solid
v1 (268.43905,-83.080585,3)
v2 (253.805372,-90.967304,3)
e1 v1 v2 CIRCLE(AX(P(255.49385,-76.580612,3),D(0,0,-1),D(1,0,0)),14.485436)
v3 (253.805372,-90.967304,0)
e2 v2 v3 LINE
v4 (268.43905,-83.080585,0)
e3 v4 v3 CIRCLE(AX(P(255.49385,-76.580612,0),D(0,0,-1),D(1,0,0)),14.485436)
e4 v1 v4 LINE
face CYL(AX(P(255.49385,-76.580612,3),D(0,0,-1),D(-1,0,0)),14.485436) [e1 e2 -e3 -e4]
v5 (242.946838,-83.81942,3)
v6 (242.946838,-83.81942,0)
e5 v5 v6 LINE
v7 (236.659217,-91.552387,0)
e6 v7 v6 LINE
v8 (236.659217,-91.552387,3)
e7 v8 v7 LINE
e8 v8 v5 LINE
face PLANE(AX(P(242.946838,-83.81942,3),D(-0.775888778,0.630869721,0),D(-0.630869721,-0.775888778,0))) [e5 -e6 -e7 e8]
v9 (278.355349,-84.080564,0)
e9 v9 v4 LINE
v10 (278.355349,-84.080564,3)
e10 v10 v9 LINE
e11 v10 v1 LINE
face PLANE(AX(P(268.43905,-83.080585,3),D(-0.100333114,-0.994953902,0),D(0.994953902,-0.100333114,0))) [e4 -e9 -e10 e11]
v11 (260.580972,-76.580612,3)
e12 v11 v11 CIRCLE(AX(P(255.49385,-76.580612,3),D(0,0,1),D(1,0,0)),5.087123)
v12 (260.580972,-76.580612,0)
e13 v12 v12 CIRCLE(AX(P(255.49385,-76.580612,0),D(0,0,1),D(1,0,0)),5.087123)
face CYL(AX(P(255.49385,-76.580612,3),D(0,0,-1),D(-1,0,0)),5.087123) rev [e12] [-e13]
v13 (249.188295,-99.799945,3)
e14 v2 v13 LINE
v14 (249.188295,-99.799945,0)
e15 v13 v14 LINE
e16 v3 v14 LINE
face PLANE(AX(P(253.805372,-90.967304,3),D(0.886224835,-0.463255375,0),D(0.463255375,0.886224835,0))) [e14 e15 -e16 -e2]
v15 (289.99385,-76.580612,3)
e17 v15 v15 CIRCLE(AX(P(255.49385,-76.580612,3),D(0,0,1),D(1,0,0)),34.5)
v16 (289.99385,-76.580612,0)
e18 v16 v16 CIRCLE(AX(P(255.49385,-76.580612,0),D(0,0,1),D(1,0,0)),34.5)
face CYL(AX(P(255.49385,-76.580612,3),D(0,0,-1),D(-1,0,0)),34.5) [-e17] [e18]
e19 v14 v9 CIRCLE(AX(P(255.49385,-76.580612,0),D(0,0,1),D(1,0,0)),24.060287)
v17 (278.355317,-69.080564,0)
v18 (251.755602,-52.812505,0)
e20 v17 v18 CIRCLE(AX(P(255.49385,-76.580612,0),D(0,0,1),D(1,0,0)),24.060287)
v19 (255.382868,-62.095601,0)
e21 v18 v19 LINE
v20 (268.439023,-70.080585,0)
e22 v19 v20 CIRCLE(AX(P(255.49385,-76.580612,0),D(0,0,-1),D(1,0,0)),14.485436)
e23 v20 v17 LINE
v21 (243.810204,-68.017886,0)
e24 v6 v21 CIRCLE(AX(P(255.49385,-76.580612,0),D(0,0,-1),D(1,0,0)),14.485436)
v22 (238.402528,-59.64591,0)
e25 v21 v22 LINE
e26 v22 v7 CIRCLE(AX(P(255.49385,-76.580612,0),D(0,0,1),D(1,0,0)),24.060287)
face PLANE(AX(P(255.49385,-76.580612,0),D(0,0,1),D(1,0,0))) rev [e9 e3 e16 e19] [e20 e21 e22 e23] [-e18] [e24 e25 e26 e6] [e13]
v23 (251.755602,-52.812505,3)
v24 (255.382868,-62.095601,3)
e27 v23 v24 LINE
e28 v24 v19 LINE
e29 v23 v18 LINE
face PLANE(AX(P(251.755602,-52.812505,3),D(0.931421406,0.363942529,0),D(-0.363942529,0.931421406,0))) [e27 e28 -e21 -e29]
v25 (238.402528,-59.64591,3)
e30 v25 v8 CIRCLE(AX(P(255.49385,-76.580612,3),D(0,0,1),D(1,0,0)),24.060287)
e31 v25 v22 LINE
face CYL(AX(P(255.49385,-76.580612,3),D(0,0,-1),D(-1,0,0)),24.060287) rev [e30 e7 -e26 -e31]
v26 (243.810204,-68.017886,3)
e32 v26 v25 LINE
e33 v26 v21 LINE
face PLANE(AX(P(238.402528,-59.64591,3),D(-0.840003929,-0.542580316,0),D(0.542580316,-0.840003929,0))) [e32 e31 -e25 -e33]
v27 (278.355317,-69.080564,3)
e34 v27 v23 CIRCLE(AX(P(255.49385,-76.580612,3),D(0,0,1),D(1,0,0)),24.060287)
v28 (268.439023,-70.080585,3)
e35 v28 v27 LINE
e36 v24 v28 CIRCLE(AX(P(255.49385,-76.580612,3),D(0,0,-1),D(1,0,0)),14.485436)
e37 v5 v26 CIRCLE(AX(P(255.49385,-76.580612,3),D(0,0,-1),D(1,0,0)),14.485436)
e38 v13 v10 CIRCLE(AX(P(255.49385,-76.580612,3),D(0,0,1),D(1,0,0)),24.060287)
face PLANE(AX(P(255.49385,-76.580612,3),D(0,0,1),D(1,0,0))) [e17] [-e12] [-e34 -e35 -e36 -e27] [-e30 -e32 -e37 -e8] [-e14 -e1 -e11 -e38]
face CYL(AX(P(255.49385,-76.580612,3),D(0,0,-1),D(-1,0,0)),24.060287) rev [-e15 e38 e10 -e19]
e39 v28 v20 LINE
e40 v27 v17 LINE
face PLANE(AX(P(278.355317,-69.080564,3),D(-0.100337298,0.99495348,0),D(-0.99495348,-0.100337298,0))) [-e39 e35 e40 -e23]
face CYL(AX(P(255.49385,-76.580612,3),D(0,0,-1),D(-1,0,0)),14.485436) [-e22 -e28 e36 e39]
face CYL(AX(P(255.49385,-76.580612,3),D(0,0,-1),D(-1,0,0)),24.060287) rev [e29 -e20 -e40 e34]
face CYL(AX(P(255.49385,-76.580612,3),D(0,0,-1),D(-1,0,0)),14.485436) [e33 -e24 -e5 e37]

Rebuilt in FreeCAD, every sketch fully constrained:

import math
import FreeCAD as App
import Part
import Sketcher
Q = App.Units.Quantity

doc = App.newDocument("Part")
body = doc.addObject("PartDesign::Body", "Body")

# Sketch on XY plane
sketch1 = body.newObject("Sketcher::SketchObject", "Sketch")
sketch1.AttachmentSupport = (doc.getObject("XY_Plane"), [""])
sketch1.MapMode = "FlatFace"
sketch1.addGeometry([
    Part.Circle(App.Vector(255, -77, 0), App.Vector(0, 0, 1), 34),  # 0
    Part.ArcOfCircle(Part.Circle(App.Vector(255, -77, 0), App.Vector(0, 0, 1), 14), math.radians(-97), math.radians(-27)),  # 1
    Part.LineSegment(App.Vector(268, -83, 0), App.Vector(278, -84, 0)),  # 2
    Part.ArcOfCircle(Part.Circle(App.Vector(255, -77, 0), App.Vector(0, 0, 1), 24), math.radians(-105), math.radians(-18)),  # 3
    Part.LineSegment(App.Vector(249, -100, 0), App.Vector(254, -91, 0)),  # 4
    Part.Circle(App.Vector(255, -77, 0), App.Vector(0, 0, 1), 5),  # 5
    Part.ArcOfCircle(Part.Circle(App.Vector(255, -77, 0), App.Vector(0, 0, 1), 14), math.radians(144), math.radians(210)),  # 6
    Part.LineSegment(App.Vector(243, -84, 0), App.Vector(237, -92, 0)),  # 7
    Part.ArcOfCircle(Part.Circle(App.Vector(255, -77, 0), App.Vector(0, 0, 1), 24), math.radians(135), math.radians(218)),  # 8
    Part.LineSegment(App.Vector(238, -60, 0), App.Vector(244, -68, 0)),  # 9
    Part.LineSegment(App.Vector(255, -62, 0), App.Vector(252, -53, 0)),  # 10
    Part.ArcOfCircle(Part.Circle(App.Vector(255, -77, 0), App.Vector(0, 0, 1), 24), math.radians(18), math.radians(99)),  # 11
    Part.LineSegment(App.Vector(278, -69, 0), App.Vector(268, -70, 0)),  # 12
    Part.ArcOfCircle(Part.Circle(App.Vector(255, -77, 0), App.Vector(0, 0, 1), 14), math.radians(27), math.radians(90)),  # 13
], False)
sketch1.addConstraint([
    Sketcher.Constraint("Coincident", 1, 2, 2, 1),
    Sketcher.Constraint("Coincident", 2, 2, 3, 2),
    Sketcher.Constraint("Coincident", 3, 1, 4, 1),
    Sketcher.Constraint("Coincident", 4, 2, 1, 1),
    Sketcher.Constraint("Coincident", 6, 2, 7, 1),
    Sketcher.Constraint("Coincident", 7, 2, 8, 2),
    Sketcher.Constraint("Coincident", 8, 1, 9, 1),
    Sketcher.Constraint("Coincident", 9, 2, 6, 1),
    Sketcher.Constraint("Coincident", 10, 2, 11, 2),
    Sketcher.Constraint("Coincident", 11, 1, 12, 1),
    Sketcher.Constraint("Coincident", 12, 2, 13, 1),
    Sketcher.Constraint("Coincident", 13, 2, 10, 1),
    Sketcher.Constraint("Coincident", 1, 3, 0, 3),
    Sketcher.Constraint("Coincident", 3, 3, 0, 3),
    Sketcher.Constraint("Coincident", 5, 3, 0, 3),
    Sketcher.Constraint("Coincident", 6, 3, 0, 3),
    Sketcher.Constraint("Coincident", 8, 3, 0, 3),
    Sketcher.Constraint("Coincident", 11, 3, 0, 3),
    Sketcher.Constraint("Coincident", 13, 3, 0, 3),
    Sketcher.Constraint("Equal", 1, 6),
    Sketcher.Constraint("Equal", 3, 8),
    Sketcher.Constraint("Equal", 8, 11),
    Sketcher.Constraint("Equal", 6, 13),
    Sketcher.Constraint("Equal", 2, 4),
    Sketcher.Constraint("Equal", 4, 7),
    Sketcher.Constraint("Equal", 7, 9),
    Sketcher.Constraint("Equal", 9, 10),
    Sketcher.Constraint("Equal", 10, 12),
    Sketcher.Constraint("Diameter", 0, Q("69 mm")),
    Sketcher.Constraint("DistanceY", 2, 2, 11, 1, Q("15 mm")),
    Sketcher.Constraint("DistanceY", 1, 2, 12, 2, Q("13 mm")),
    Sketcher.Constraint("Diameter", 5, Q("10.174245 mm")),
    Sketcher.Constraint("Radius", 1, Q("14.485436 mm")),
    Sketcher.Constraint("Radius", 3, Q("24.060287 mm")),
    Sketcher.Constraint("DistanceX", -1, 1, 10, 2, Q("251.755602 mm")),
    Sketcher.Constraint("DistanceY", 13, 2, -1, 1, Q("62.095601 mm")),
    Sketcher.Constraint("DistanceX", 1, 3, 1, 2, Q("12.9452 mm")),
    Sketcher.Constraint("DistanceX", -1, 1, 0, 3, Q("255.49385 mm")),
    Sketcher.Constraint("DistanceX", -1, 1, 4, 2, Q("253.805372 mm")),
    Sketcher.Constraint("DistanceY", 6, 2, -1, 1, Q("83.81942 mm")),
    Sketcher.Constraint("DistanceX", -1, 1, 8, 1, Q("238.402528 mm")),
])
pad1 = body.newObject("PartDesign::Pad", "Pad")
pad1.Profile = sketch1
pad1.Length = 3

doc.recompute()
